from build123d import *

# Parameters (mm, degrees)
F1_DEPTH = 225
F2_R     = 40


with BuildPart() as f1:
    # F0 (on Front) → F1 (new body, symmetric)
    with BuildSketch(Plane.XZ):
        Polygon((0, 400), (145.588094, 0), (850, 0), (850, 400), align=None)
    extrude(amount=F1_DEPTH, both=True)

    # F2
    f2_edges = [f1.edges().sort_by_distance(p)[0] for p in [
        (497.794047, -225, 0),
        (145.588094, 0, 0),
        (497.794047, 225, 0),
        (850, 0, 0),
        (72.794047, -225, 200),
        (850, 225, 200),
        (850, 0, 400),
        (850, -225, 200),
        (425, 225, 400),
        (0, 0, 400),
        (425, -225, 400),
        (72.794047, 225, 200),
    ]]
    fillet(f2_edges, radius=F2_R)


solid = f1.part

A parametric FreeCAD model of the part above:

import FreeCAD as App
import Part
import Sketcher

V = App.Vector
Q = App.Units.Quantity


def add_polygon(sketch, points):
    """Adds a closed chain of lines whose ends are joined by coincident constraints."""
    first, n = sketch.GeometryCount, len(points)
    for a, b in zip(points, points[1:] + points[:1]):
        sketch.addGeometry(Part.LineSegment(App.Vector(*a, 0), App.Vector(*b, 0)), False)
    for i in range(n):
        sketch.addConstraint(Sketcher.Constraint("Coincident", first + i, 2, first + (i + 1) % n, 1))

doc = App.newDocument("Part")
params = doc.addObject("Spreadsheet::Sheet", "Params")
for row, (alias, value) in enumerate([
    ("sketch1_width", "850 mm"),
    ("sketch1_height", "400 mm"),
    ("pad1_length", "450 mm"),
    ("fillet_radius", "40 mm"),
], start=1):
    params.set(f"A{row}", alias)
    params.set(f"B{row}", "=" + value)
    params.setAlias(f"B{row}", alias)

body = doc.addObject("PartDesign::Body", "Body")

sketch1 = body.newObject("Sketcher::SketchObject", "Sketch")
sketch1.AttachmentSupport = (doc.getObject("XZ_Plane"), [""])
sketch1.MapMode = "FlatFace"
add_polygon(sketch1, [(0, 400), (146, 0), (850, 0), (850, 400)])
sketch1.addConstraint([
    Sketcher.Constraint("Horizontal", 1),
    Sketcher.Constraint("Vertical", 2),
    Sketcher.Constraint("Horizontal", 3),
    Sketcher.Constraint("PointOnObject", 0, 2, -1),
    Sketcher.Constraint("PointOnObject", 3, 2, -2),
    Sketcher.Constraint("DistanceX", 3, 2, 3, 1, Q("850 mm")),
    Sketcher.Constraint("DistanceY", 2, 1, 2, 2, Q("400 mm")),
    Sketcher.Constraint("Angle", 0, Q("-70 deg")),
])
sketch1.setExpression("Constraints[9]", "Params.sketch1_width")
sketch1.setExpression("Constraints[10]", "Params.sketch1_height")
pad1 = body.newObject("PartDesign::Pad", "Pad")
pad1.Profile = sketch1
pad1.setExpression("Length", "Params.pad1_length")
pad1.Midplane = True
doc.recompute()

fillet = body.newObject("PartDesign::Fillet", "Fillet")
fillet.Base = (pad1, ["Edge1"])
fillet.UseAllEdges = True
fillet.setExpression("Radius", "Params.fillet_radius")

doc.recompute()
